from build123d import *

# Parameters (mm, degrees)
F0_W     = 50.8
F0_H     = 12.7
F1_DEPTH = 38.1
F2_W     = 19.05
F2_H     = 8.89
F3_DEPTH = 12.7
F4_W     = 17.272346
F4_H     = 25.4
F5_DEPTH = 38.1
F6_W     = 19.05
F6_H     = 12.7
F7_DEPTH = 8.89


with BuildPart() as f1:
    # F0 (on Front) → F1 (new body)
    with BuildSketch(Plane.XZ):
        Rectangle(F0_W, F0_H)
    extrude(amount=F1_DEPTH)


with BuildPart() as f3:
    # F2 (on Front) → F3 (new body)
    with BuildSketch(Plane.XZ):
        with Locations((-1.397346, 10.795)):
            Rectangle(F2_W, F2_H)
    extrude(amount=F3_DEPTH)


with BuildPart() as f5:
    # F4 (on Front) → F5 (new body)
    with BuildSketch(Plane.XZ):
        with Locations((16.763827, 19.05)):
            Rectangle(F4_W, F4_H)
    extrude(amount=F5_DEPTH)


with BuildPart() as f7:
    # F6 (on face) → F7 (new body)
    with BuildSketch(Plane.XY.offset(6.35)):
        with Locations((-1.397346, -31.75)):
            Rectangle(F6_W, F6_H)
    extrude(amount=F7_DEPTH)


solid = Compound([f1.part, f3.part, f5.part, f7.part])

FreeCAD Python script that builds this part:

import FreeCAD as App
import Part
import Sketcher
from FreeCAD import Vector
Q = App.Units.Quantity

doc = App.newDocument("Part")
params = doc.addObject("Spreadsheet::Sheet", "Params")
for row, (alias, value) in enumerate([
    ("sketch1_width", "2 in"),
    ("sketch1_height", "0.5 in"),
    ("pad1_length", "1.5 in"),
    ("sketch2_width", "0.75 in"),
    ("sketch2_height", "0.35 in"),
    ("pad2_length", "0.5 in"),
    ("sketch3_height", "1 in"),
    ("pad3_length", "1.5 in"),
    ("sketch4_height", "0.5 in"),
    ("sketch4_width", "0.75 in"),
    ("pad4_length", "0.35 in"),
], start=1):
    params.set(f"A{row}", alias)
    params.set(f"B{row}", "=" + value)
    params.setAlias(f"B{row}", alias)

body = doc.addObject("PartDesign::Body", "Body")

sketch1 = body.newObject("Sketcher::SketchObject", "Sketch")
sketch1.AttachmentSupport = (doc.getObject("XZ_Plane"), [""])
sketch1.MapMode = "FlatFace"
sketch1.addGeometry(Part.LineSegment(Vector(-25, 6, 0), Vector(-25, -6, 0)), False)
sketch1.addGeometry(Part.LineSegment(Vector(-25, -6, 0), Vector(25, -6, 0)), False)
sketch1.addGeometry(Part.LineSegment(Vector(25, -6, 0), Vector(25, 6, 0)), False)
sketch1.addGeometry(Part.LineSegment(Vector(25, 6, 0), Vector(-25, 6, 0)), False)
sketch1.addConstraint(Sketcher.Constraint("Coincident", 0, 2, 1, 1))
sketch1.addConstraint(Sketcher.Constraint("Coincident", 1, 2, 2, 1))
sketch1.addConstraint(Sketcher.Constraint("Coincident", 2, 2, 3, 1))
sketch1.addConstraint(Sketcher.Constraint("Coincident", 3, 2, 0, 1))
sketch1.addConstraint(Sketcher.Constraint("Vertical", 0))
sketch1.addConstraint(Sketcher.Constraint("Horizontal", 1))
sketch1.addConstraint(Sketcher.Constraint("Vertical", 2))
sketch1.addConstraint(Sketcher.Constraint("Horizontal", 3))
sketch1.addConstraint(Sketcher.Constraint("Symmetric", 0, 2, 2, 2, -1, 1))
sketch1.addConstraint(Sketcher.Constraint("DistanceX", 1, 1, 1, 2, Q("2 in")))
sketch1.addConstraint(Sketcher.Constraint("DistanceY", 0, 2, 0, 1, Q("0.5 in")))
sketch1.setExpression("Constraints[9]", "Params.sketch1_width")
sketch1.setExpression("Constraints[10]", "Params.sketch1_height")
pad1 = body.newObject("PartDesign::Pad", "Pad")
pad1.Profile = sketch1
pad1.setExpression("Length", "Params.pad1_length")
body2 = doc.addObject("PartDesign::Body", "Body001")

sketch2 = body2.newObject("Sketcher::SketchObject", "Sketch001")
sketch2.AttachmentSupport = (doc.getObject("XZ_Plane001"), [""])
sketch2.MapMode = "FlatFace"
sketch2.addGeometry(Part.LineSegment(Vector(-11, 15, 0), Vector(-11, 6, 0)), False)
sketch2.addGeometry(Part.LineSegment(Vector(-11, 6, 0), Vector(8, 6, 0)), False)
sketch2.addGeometry(Part.LineSegment(Vector(8, 6, 0), Vector(8, 15, 0)), False)
sketch2.addGeometry(Part.LineSegment(Vector(8, 15, 0), Vector(-11, 15, 0)), False)
sketch2.addConstraint(Sketcher.Constraint("Coincident", 0, 2, 1, 1))
sketch2.addConstraint(Sketcher.Constraint("Coincident", 1, 2, 2, 1))
sketch2.addConstraint(Sketcher.Constraint("Coincident", 2, 2, 3, 1))
sketch2.addConstraint(Sketcher.Constraint("Coincident", 3, 2, 0, 1))
sketch2.addConstraint(Sketcher.Constraint("Vertical", 0))
sketch2.addConstraint(Sketcher.Constraint("Horizontal", 1))
sketch2.addConstraint(Sketcher.Constraint("Vertical", 2))
sketch2.addConstraint(Sketcher.Constraint("Horizontal", 3))
sketch2.addConstraint(Sketcher.Constraint("DistanceX", 1, 1, 1, 2, Q("0.75 in")))
sketch2.addConstraint(Sketcher.Constraint("DistanceY", 0, 2, 0, 1, Q("0.35 in")))
sketch2.addConstraint(Sketcher.Constraint("DistanceY", -1, 1, 2, 2, Q("0.6 in")))
sketch2.addConstraint(Sketcher.Constraint("DistanceX", 0, 2, -1, 1, 10.922346))
sketch2.setExpression("Constraints[8]", "Params.sketch2_width")
sketch2.setExpression("Constraints[9]", "Params.sketch2_height")
pad2 = body2.newObject("PartDesign::Pad", "Pad001")
pad2.Profile = sketch2
pad2.setExpression("Length", "Params.pad2_length")
body3 = doc.addObject("PartDesign::Body", "Body002")

sketch3 = body3.newObject("Sketcher::SketchObject", "Sketch002")
sketch3.AttachmentSupport = (doc.getObject("XZ_Plane002"), [""])
sketch3.MapMode = "FlatFace"
sketch3.addGeometry(Part.LineSegment(Vector(8, 32, 0), Vector(8, 6, 0)), False)
sketch3.addGeometry(Part.LineSegment(Vector(8, 6, 0), Vector(25, 6, 0)), False)
sketch3.addGeometry(Part.LineSegment(Vector(25, 6, 0), Vector(25, 32, 0)), False)
sketch3.addGeometry(Part.LineSegment(Vector(25, 32, 0), Vector(8, 32, 0)), False)
sketch3.addConstraint(Sketcher.Constraint("Coincident", 0, 2, 1, 1))
sketch3.addConstraint(Sketcher.Constraint("Coincident", 1, 2, 2, 1))
sketch3.addConstraint(Sketcher.Constraint("Coincident", 2, 2, 3, 1))
sketch3.addConstraint(Sketcher.Constraint("Coincident", 3, 2, 0, 1))
sketch3.addConstraint(Sketcher.Constraint("Vertical", 0))
sketch3.addConstraint(Sketcher.Constraint("Horizontal", 1))
sketch3.addConstraint(Sketcher.Constraint("Vertical", 2))
sketch3.addConstraint(Sketcher.Constraint("Horizontal", 3))
sketch3.addConstraint(Sketcher.Constraint("DistanceY", 0, 2, 0, 1, Q("1 in")))
sketch3.addConstraint(Sketcher.Constraint("DistanceX", -1, 1, 1, 2, Q("1 in")))
sketch3.addConstraint(Sketcher.Constraint("DistanceY", -1, 1, 0, 2, Q("0.25 in")))
sketch3.addConstraint(Sketcher.Constraint("DistanceX", 1, 1, 1, 2, 17.272346))
sketch3.setExpression("Constraints[8]", "Params.sketch3_height")
pad3 = body3.newObject("PartDesign::Pad", "Pad002")
pad3.Profile = sketch3
pad3.setExpression("Length", "Params.pad3_length")
body4 = doc.addObject("PartDesign::Body", "Body003")

sketch4 = body4.newObject("Sketcher::SketchObject", "Sketch003")
sketch4.AttachmentSupport = (doc.getObject("XY_Plane003"), [""])
sketch4.MapMode = "FlatFace"
sketch4.AttachmentOffset = App.Placement(Vector(0, 0, 0.25 * 25.4), App.Rotation())
sketch4.addGeometry(Part.LineSegment(Vector(-11, -25, 0), Vector(-11, -38, 0)), False)
sketch4.addGeometry(Part.LineSegment(Vector(-11, -38, 0), Vector(8, -38, 0)), False)
sketch4.addGeometry(Part.LineSegment(Vector(8, -38, 0), Vector(8, -25, 0)), False)
sketch4.addGeometry(Part.LineSegment(Vector(8, -25, 0), Vector(-11, -25, 0)), False)
sketch4.addConstraint(Sketcher.Constraint("Coincident", 0, 2, 1, 1))
sketch4.addConstraint(Sketcher.Constraint("Coincident", 1, 2, 2, 1))
sketch4.addConstraint(Sketcher.Constraint("Coincident", 2, 2, 3, 1))
sketch4.addConstraint(Sketcher.Constraint("Coincident", 3, 2, 0, 1))
sketch4.addConstraint(Sketcher.Constraint("Vertical", 0))
sketch4.addConstraint(Sketcher.Constraint("Horizontal", 1))
sketch4.addConstraint(Sketcher.Constraint("Vertical", 2))
sketch4.addConstraint(Sketcher.Constraint("Horizontal", 3))
sketch4.addConstraint(Sketcher.Constraint("DistanceY", 0, 2, 0, 1, Q("0.5 in")))
sketch4.addConstraint(Sketcher.Constraint("DistanceY", 2, 2, -1, 1, Q("1 in")))
sketch4.addConstraint(Sketcher.Constraint("DistanceX", 1, 1, 1, 2, Q("0.75 in")))
sketch4.addConstraint(Sketcher.Constraint("DistanceX", 0, 2, -1, 1, 10.922346))
sketch4.setExpression("Constraints[8]", "Params.sketch4_height")
sketch4.setExpression("Constraints[10]", "Params.sketch4_width")
pad4 = body4.newObject("PartDesign::Pad", "Pad003")
pad4.Profile = sketch4
pad4.setExpression("Length", "Params.pad4_length")

doc.recompute()
